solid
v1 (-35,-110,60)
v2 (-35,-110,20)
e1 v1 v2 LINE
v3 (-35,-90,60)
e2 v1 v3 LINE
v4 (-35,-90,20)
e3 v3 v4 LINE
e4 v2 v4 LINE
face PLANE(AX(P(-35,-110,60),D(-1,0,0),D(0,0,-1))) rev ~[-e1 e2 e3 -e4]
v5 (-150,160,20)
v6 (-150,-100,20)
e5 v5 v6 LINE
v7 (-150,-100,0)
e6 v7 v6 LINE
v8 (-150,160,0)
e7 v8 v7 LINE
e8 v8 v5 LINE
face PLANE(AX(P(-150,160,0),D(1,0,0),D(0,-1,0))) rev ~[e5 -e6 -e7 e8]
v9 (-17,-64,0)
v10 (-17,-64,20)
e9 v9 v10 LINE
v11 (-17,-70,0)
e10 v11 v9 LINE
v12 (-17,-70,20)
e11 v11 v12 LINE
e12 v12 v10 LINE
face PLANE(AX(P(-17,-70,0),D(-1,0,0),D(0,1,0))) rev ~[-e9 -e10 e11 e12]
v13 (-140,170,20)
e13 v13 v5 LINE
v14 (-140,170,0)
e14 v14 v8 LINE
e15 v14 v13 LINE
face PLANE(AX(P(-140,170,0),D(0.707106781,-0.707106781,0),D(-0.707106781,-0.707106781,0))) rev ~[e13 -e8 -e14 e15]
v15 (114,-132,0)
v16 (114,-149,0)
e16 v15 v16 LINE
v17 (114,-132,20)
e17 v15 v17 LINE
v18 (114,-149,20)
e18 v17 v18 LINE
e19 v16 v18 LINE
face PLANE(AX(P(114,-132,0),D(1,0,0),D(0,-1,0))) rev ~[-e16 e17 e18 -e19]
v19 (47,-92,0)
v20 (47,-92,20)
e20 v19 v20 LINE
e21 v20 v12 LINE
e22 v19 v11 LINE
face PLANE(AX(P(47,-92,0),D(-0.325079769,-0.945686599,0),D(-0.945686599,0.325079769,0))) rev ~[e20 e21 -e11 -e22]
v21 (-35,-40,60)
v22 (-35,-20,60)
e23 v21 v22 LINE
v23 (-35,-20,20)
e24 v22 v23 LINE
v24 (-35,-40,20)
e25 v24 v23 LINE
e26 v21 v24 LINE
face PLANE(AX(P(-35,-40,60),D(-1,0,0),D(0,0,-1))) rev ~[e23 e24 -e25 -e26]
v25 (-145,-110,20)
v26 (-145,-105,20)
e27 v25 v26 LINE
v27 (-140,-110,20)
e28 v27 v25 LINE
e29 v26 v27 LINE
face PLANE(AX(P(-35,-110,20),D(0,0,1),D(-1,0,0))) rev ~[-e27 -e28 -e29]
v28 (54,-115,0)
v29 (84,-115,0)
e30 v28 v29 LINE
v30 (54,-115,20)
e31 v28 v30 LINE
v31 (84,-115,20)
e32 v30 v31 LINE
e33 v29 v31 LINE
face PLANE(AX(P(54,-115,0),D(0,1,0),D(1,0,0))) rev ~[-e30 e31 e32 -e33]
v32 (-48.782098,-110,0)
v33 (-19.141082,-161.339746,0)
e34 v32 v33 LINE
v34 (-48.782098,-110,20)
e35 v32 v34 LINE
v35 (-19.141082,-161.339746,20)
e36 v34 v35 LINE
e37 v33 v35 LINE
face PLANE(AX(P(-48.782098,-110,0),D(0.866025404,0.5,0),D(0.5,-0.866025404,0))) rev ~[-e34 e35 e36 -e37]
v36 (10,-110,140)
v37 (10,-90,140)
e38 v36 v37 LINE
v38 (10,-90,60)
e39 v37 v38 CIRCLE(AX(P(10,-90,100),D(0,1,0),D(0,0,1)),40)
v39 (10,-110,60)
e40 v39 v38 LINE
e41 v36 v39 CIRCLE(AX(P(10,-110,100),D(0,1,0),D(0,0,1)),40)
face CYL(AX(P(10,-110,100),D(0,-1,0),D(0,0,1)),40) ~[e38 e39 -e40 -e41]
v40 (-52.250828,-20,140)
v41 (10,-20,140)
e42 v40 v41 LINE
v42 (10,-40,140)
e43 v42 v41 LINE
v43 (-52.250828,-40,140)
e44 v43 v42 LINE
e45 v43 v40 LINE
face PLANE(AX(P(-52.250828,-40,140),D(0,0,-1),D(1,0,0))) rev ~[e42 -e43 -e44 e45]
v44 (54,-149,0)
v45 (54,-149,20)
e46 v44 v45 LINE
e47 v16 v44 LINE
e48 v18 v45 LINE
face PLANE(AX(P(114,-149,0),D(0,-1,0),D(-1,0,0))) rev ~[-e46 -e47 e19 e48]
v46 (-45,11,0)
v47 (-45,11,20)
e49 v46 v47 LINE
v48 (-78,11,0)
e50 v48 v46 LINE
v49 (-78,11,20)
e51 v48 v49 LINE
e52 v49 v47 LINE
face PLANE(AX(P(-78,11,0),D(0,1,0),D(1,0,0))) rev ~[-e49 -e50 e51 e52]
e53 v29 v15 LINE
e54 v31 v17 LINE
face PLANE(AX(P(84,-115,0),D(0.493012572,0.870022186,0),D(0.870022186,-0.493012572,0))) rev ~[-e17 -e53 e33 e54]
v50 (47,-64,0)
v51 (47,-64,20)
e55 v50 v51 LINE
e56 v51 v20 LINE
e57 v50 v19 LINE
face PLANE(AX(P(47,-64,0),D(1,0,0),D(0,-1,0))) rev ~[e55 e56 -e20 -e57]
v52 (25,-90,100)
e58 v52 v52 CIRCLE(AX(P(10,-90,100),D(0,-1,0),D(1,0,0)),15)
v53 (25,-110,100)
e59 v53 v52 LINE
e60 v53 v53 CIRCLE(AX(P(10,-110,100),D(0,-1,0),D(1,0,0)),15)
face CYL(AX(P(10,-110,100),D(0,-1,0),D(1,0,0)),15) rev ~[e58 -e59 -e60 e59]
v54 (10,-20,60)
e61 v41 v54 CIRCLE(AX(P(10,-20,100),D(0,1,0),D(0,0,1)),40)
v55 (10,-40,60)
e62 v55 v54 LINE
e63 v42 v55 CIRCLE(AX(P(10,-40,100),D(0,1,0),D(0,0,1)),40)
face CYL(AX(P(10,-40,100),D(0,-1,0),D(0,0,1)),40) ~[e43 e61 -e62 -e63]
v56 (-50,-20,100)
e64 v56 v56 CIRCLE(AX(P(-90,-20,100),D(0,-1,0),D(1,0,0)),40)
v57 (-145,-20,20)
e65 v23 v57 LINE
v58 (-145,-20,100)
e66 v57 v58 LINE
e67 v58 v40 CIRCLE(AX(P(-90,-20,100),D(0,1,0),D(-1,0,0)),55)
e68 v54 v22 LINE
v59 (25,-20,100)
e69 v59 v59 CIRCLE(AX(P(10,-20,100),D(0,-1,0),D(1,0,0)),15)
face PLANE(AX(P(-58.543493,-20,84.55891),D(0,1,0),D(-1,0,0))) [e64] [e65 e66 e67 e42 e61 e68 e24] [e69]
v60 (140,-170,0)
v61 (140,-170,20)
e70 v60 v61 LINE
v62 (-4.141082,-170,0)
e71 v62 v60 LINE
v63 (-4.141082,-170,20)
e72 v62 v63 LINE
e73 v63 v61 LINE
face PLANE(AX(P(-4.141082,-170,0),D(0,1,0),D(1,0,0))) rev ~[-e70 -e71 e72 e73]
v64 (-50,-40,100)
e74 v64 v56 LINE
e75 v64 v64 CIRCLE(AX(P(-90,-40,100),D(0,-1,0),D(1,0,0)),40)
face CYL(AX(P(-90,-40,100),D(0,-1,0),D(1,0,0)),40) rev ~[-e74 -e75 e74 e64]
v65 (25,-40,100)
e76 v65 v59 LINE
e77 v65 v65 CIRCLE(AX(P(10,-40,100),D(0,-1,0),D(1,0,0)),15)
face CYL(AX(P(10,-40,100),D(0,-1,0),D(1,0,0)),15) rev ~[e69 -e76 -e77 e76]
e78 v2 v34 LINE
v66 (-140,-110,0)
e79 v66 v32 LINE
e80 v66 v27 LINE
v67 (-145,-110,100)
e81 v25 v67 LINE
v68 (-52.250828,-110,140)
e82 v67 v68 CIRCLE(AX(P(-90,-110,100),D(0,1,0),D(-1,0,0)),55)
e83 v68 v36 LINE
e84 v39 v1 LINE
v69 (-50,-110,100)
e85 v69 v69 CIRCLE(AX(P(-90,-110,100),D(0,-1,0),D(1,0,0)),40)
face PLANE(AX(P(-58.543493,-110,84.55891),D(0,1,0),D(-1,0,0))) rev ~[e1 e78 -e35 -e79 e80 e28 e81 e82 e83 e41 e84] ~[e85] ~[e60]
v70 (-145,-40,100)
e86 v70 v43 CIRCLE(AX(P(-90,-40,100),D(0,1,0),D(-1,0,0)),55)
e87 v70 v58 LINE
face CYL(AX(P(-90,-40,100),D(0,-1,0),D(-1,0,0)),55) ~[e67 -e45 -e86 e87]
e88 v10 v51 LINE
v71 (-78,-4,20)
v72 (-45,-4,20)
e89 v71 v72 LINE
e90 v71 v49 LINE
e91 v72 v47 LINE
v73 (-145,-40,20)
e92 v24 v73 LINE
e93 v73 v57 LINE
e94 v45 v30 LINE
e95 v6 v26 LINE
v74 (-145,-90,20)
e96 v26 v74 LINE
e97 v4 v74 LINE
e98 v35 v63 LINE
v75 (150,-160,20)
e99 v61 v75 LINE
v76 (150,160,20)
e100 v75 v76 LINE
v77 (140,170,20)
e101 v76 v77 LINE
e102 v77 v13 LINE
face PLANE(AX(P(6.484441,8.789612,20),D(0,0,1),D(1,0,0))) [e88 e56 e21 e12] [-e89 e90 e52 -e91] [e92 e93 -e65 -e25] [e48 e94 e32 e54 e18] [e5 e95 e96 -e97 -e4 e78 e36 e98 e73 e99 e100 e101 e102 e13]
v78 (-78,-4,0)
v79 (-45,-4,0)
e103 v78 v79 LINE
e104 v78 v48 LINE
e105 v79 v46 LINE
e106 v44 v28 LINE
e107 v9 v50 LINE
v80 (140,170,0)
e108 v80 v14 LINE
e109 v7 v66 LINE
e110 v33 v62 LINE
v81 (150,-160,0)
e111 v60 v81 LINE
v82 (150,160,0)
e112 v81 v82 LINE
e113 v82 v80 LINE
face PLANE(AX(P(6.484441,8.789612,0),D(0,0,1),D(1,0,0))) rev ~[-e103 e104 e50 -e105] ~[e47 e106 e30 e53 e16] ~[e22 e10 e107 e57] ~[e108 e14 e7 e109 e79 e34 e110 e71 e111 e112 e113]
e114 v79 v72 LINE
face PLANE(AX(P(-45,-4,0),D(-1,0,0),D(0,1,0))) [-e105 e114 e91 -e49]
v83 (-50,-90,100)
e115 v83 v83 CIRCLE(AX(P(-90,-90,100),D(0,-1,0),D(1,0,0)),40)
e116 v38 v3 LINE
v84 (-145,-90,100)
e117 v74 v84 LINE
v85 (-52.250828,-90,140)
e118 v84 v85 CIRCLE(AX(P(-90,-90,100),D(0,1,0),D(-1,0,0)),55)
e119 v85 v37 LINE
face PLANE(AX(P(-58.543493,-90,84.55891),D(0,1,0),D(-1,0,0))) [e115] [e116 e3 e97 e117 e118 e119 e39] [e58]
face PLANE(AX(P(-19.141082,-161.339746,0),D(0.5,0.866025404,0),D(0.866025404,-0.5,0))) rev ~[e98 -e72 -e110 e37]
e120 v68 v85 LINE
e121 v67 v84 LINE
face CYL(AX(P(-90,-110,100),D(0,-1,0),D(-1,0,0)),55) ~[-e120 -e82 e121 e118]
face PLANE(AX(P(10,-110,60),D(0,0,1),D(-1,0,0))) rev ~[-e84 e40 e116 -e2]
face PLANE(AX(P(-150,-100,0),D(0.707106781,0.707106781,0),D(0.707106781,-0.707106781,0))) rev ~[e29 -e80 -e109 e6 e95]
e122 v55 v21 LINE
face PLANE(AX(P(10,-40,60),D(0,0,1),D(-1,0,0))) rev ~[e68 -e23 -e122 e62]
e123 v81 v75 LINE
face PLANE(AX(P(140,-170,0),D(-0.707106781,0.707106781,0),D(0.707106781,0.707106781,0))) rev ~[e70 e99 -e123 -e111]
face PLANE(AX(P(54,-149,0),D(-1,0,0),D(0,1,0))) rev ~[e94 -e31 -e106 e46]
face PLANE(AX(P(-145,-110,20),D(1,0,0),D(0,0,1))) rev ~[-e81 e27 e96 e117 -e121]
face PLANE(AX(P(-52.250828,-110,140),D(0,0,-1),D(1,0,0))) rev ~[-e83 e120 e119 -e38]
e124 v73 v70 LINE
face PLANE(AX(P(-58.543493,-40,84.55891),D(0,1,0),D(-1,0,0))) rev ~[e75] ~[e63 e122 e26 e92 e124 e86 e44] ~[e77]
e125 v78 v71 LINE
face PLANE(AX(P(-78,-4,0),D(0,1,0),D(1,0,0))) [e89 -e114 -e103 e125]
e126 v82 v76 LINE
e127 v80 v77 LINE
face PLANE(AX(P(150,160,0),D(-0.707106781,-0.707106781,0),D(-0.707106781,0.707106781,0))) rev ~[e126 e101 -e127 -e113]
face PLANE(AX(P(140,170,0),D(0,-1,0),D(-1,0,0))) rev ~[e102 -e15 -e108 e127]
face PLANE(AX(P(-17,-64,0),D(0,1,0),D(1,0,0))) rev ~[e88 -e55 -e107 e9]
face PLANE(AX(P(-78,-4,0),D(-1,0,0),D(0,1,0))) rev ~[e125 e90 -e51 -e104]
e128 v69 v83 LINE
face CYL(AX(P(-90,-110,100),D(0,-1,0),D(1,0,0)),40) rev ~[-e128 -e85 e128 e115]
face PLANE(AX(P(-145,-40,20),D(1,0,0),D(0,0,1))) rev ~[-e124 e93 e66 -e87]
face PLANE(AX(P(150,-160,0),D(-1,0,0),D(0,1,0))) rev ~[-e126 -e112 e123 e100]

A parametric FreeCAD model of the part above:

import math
import FreeCAD as App
import Part
import Sketcher

V = App.Vector
Q = App.Units.Quantity

doc = App.newDocument("Part")
body = doc.addObject("PartDesign::Body", "Body")

sketch1 = doc.addObject("Sketcher::SketchObject", "Sketch")
body.addObject(sketch1)
sketch1.AttachmentSupport = (doc.XY_Plane, [""])
sketch1.MapMode = "FlatFace"
sketch1.addGeometry([
    Part.LineSegment(V(-140, -110, 0), V(-49, -110, 0)),
    Part.LineSegment(V(-49, -110, 0), V(-19, -161, 0)),
    Part.LineSegment(V(-19, -161, 0), V(-4, -170, 0)),
    Part.LineSegment(V(-4, -170, 0), V(140, -170, 0)),
    Part.LineSegment(V(140, -170, 0), V(150, -160, 0)),
    Part.LineSegment(V(150, -160, 0), V(150, 160, 0)),
    Part.LineSegment(V(150, 160, 0), V(140, 170, 0)),
    Part.LineSegment(V(140, 170, 0), V(-140, 170, 0)),
    Part.LineSegment(V(-140, 170, 0), V(-150, 160, 0)),
    Part.LineSegment(V(-150, 160, 0), V(-150, -100, 0)),
    Part.LineSegment(V(-150, -100, 0), V(-140, -110, 0)),
    Part.LineSegment(V(47, -64, 0), V(47, -92, 0)),
    Part.LineSegment(V(47, -92, 0), V(-17, -70, 0)),
    Part.LineSegment(V(-17, -70, 0), V(-17, -64, 0)),
    Part.LineSegment(V(-17, -64, 0), V(47, -64, 0)),
    Part.LineSegment(V(54, -115, 0), V(84, -115, 0)),
    Part.LineSegment(V(84, -115, 0), V(114, -132, 0)),
    Part.LineSegment(V(114, -132, 0), V(114, -149, 0)),
    Part.LineSegment(V(114, -149, 0), V(54, -149, 0)),
    Part.LineSegment(V(54, -149, 0), V(54, -115, 0)),
    Part.LineSegment(V(-45, -4, 0), V(-78, -4, 0)),
    Part.LineSegment(V(-78, -4, 0), V(-78, 11, 0)),
    Part.LineSegment(V(-78, 11, 0), V(-45, 11, 0)),
    Part.LineSegment(V(-45, 11, 0), V(-45, -4, 0)),
], False)
sketch1.addConstraint([
    Sketcher.Constraint("Coincident", 0, 2, 1, 1),
    Sketcher.Constraint("Coincident", 1, 2, 2, 1),
    Sketcher.Constraint("Coincident", 2, 2, 3, 1),
    Sketcher.Constraint("Coincident", 3, 2, 4, 1),
    Sketcher.Constraint("Coincident", 4, 2, 5, 1),
    Sketcher.Constraint("Coincident", 5, 2, 6, 1),
    Sketcher.Constraint("Coincident", 6, 2, 7, 1),
    Sketcher.Constraint("Coincident", 7, 2, 8, 1),
    Sketcher.Constraint("Coincident", 8, 2, 9, 1),
    Sketcher.Constraint("Coincident", 9, 2, 10, 1),
    Sketcher.Constraint("Coincident", 10, 2, 0, 1),
    Sketcher.Constraint("Coincident", 11, 2, 12, 1),
    Sketcher.Constraint("Coincident", 12, 2, 13, 1),
    Sketcher.Constraint("Coincident", 13, 2, 14, 1),
    Sketcher.Constraint("Coincident", 14, 2, 11, 1),
    Sketcher.Constraint("Coincident", 15, 2, 16, 1),
    Sketcher.Constraint("Coincident", 16, 2, 17, 1),
    Sketcher.Constraint("Coincident", 17, 2, 18, 1),
    Sketcher.Constraint("Coincident", 18, 2, 19, 1),
    Sketcher.Constraint("Coincident", 19, 2, 15, 1),
    Sketcher.Constraint("Coincident", 20, 2, 21, 1),
    Sketcher.Constraint("Coincident", 21, 2, 22, 1),
    Sketcher.Constraint("Coincident", 22, 2, 23, 1),
    Sketcher.Constraint("Coincident", 23, 2, 20, 1),
    Sketcher.Constraint("Horizontal", 0),
    Sketcher.Constraint("Horizontal", 3),
    Sketcher.Constraint("Vertical", 5),
    Sketcher.Constraint("Horizontal", 7),
    Sketcher.Constraint("Vertical", 9),
    Sketcher.Constraint("Vertical", 11),
    Sketcher.Constraint("Vertical", 13),
    Sketcher.Constraint("Horizontal", 14),
    Sketcher.Constraint("Horizontal", 15),
    Sketcher.Constraint("Vertical", 17),
    Sketcher.Constraint("Horizontal", 18),
    Sketcher.Constraint("Vertical", 19),
    Sketcher.Constraint("Horizontal", 20),
    Sketcher.Constraint("Vertical", 21),
    Sketcher.Constraint("Horizontal", 22),
    Sketcher.Constraint("Vertical", 23),
    Sketcher.Constraint("Symmetric", 3, 2, 7, 2, -1, 1),
    Sketcher.Constraint("Symmetric", 4, 2, 8, 2, -1, 1),
    Sketcher.Constraint("Perpendicular", 4, 6),
    Sketcher.Constraint("Perpendicular", 8, 10),
    Sketcher.Constraint("Horizontal", 5, 2, 8, 2),
    Sketcher.Constraint("Vertical", 3, 2, 6, 2),
    Sketcher.Constraint("Vertical", 7, 2, 10, 2),
    Sketcher.Constraint("DistanceX", 7, 2, 7, 1, 280.0),
    Sketcher.Constraint("DistanceX", 14, 1, 14, 2, 64.0),
    Sketcher.Constraint("DistanceX", 15, 1, 15, 2, 30.0),
    Sketcher.Constraint("DistanceX", 18, 2, 18, 1, 60.0),
    Sketcher.Constraint("DistanceX", 20, 2, 20, 1, 33.0),
    Sketcher.Constraint("DistanceY", 5, 1, 5, 2, 320.0),
    Sketcher.Constraint("DistanceY", 9, 2, 9, 1, 260.0),
    Sketcher.Constraint("DistanceY", 11, 2, 11, 1, 28.0),
    Sketcher.Constraint("DistanceY", 13, 1, 13, 2, 6.0),
    Sketcher.Constraint("DistanceY", 17, 2, 17, 1, 17.0),
    Sketcher.Constraint("DistanceY", 19, 1, 19, 2, 34.0),
    Sketcher.Constraint("DistanceY", 21, 1, 21, 2, 15.0),
    Sketcher.Constraint("Angle", 1, Q("-60 deg")),
    Sketcher.Constraint("Angle", 2, Q("-30 deg")),
    Sketcher.Constraint("DistanceY", 0, 2, -1, 1, 110.0),
    Sketcher.Constraint("DistanceX", -1, 1, 11, 2, 47.0),
    Sketcher.Constraint("DistanceY", 11, 2, -1, 1, 92.0),
    Sketcher.Constraint("DistanceX", -1, 1, 15, 2, 84.0),
    Sketcher.Constraint("DistanceY", 15, 2, -1, 1, 115.0),
    Sketcher.Constraint("DistanceX", 20, 2, -1, 1, 78.0),
    Sketcher.Constraint("DistanceY", 20, 2, -1, 1, 4.0),
    Sketcher.Constraint("DistanceX", 1, 2, 2, 2, 15.0),
    Sketcher.Constraint("DistanceX", 3, 1, 3, 2, 144.141082),
])
pad1 = doc.addObject("PartDesign::Pad", "Pad")
body.addObject(pad1)
pad1.Profile = sketch1
pad1.Length = 20

sketch2 = doc.addObject("Sketcher::SketchObject", "Sketch001")
body.addObject(sketch2)
sketch2.AttachmentSupport = (doc.XZ_Plane, [""])
sketch2.MapMode = "FlatFace"
sketch2.AttachmentOffset = App.Placement(V(0, 0, 110), App.Rotation())
sketch2.addGeometry([
    Part.LineSegment(V(-145, 100, 0), V(-145, 20, 0)),
    Part.LineSegment(V(-145, 20, 0), V(-35, 20, 0)),
    Part.LineSegment(V(-35, 20, 0), V(-35, 60, 0)),
    Part.LineSegment(V(-35, 60, 0), V(10, 60, 0)),
    Part.ArcOfCircle(Part.Circle(V(10, 100, 0), V(0, 0, 1), 40), math.radians(-90), math.radians(90)),
    Part.LineSegment(V(10, 140, 0), V(-52, 140, 0)),
    Part.ArcOfCircle(Part.Circle(V(-90, 100, 0), V(0, 0, 1), 55), math.radians(47), math.radians(180)),
    Part.Circle(V(10, 100, 0), V(0, 0, 1), 15),
    Part.Circle(V(-90, 100, 0), V(0, 0, 1), 40),
], False)
sketch2.addConstraint([
    Sketcher.Constraint("Coincident", 0, 2, 1, 1),
    Sketcher.Constraint("Coincident", 1, 2, 2, 1),
    Sketcher.Constraint("Coincident", 2, 2, 3, 1),
    Sketcher.Constraint("Tangent", 3, 2, 4, 1),
    Sketcher.Constraint("Tangent", 4, 2, 5, 1),
    Sketcher.Constraint("Coincident", 5, 2, 6, 1),
    Sketcher.Constraint("Tangent", 6, 2, 0, 1),
    Sketcher.Constraint("Vertical", 0),
    Sketcher.Constraint("Horizontal", 1),
    Sketcher.Constraint("Vertical", 2),
    Sketcher.Constraint("Horizontal", 3),
    Sketcher.Constraint("Horizontal", 5),
    Sketcher.Constraint("Coincident", 7, 3, 4, 3),
    Sketcher.Constraint("Coincident", 8, 3, 6, 3),
    Sketcher.Constraint("Equal", 4, 8),
    Sketcher.Constraint("Horizontal", 4, 3, 6, 3),
    Sketcher.Constraint("Diameter", 7, 30.0),
    Sketcher.Constraint("Diameter", 8, 80.0),
    Sketcher.Constraint("Radius", 6, 55.0),
    Sketcher.Constraint("DistanceX", 1, 1, 1, 2, 110.0),
    Sketcher.Constraint("DistanceX", 3, 1, 3, 2, 45.0),
    Sketcher.Constraint("DistanceY", 0, 2, 0, 1, 80.0),
    Sketcher.Constraint("DistanceX", -1, 1, 4, 3, 10.0),
    Sketcher.Constraint("DistanceY", -1, 1, 4, 3, 100.0),
])
pad2 = doc.addObject("PartDesign::Pad", "Pad001")
body.addObject(pad2)
pad2.Profile = sketch2
pad2.Length = 20
pad2.Reversed = True
doc.recompute()

linearpattern = doc.addObject("PartDesign::LinearPattern", "LinearPattern")
body.addObject(linearpattern)
linearpattern.Originals = [pad2]
linearpattern.Direction = (doc.Y_Axis, [""])
linearpattern.Mode = "offset"
linearpattern.Offset = 70
linearpattern.Occurrences = 2
body.Tip = linearpattern

doc.recompute()
